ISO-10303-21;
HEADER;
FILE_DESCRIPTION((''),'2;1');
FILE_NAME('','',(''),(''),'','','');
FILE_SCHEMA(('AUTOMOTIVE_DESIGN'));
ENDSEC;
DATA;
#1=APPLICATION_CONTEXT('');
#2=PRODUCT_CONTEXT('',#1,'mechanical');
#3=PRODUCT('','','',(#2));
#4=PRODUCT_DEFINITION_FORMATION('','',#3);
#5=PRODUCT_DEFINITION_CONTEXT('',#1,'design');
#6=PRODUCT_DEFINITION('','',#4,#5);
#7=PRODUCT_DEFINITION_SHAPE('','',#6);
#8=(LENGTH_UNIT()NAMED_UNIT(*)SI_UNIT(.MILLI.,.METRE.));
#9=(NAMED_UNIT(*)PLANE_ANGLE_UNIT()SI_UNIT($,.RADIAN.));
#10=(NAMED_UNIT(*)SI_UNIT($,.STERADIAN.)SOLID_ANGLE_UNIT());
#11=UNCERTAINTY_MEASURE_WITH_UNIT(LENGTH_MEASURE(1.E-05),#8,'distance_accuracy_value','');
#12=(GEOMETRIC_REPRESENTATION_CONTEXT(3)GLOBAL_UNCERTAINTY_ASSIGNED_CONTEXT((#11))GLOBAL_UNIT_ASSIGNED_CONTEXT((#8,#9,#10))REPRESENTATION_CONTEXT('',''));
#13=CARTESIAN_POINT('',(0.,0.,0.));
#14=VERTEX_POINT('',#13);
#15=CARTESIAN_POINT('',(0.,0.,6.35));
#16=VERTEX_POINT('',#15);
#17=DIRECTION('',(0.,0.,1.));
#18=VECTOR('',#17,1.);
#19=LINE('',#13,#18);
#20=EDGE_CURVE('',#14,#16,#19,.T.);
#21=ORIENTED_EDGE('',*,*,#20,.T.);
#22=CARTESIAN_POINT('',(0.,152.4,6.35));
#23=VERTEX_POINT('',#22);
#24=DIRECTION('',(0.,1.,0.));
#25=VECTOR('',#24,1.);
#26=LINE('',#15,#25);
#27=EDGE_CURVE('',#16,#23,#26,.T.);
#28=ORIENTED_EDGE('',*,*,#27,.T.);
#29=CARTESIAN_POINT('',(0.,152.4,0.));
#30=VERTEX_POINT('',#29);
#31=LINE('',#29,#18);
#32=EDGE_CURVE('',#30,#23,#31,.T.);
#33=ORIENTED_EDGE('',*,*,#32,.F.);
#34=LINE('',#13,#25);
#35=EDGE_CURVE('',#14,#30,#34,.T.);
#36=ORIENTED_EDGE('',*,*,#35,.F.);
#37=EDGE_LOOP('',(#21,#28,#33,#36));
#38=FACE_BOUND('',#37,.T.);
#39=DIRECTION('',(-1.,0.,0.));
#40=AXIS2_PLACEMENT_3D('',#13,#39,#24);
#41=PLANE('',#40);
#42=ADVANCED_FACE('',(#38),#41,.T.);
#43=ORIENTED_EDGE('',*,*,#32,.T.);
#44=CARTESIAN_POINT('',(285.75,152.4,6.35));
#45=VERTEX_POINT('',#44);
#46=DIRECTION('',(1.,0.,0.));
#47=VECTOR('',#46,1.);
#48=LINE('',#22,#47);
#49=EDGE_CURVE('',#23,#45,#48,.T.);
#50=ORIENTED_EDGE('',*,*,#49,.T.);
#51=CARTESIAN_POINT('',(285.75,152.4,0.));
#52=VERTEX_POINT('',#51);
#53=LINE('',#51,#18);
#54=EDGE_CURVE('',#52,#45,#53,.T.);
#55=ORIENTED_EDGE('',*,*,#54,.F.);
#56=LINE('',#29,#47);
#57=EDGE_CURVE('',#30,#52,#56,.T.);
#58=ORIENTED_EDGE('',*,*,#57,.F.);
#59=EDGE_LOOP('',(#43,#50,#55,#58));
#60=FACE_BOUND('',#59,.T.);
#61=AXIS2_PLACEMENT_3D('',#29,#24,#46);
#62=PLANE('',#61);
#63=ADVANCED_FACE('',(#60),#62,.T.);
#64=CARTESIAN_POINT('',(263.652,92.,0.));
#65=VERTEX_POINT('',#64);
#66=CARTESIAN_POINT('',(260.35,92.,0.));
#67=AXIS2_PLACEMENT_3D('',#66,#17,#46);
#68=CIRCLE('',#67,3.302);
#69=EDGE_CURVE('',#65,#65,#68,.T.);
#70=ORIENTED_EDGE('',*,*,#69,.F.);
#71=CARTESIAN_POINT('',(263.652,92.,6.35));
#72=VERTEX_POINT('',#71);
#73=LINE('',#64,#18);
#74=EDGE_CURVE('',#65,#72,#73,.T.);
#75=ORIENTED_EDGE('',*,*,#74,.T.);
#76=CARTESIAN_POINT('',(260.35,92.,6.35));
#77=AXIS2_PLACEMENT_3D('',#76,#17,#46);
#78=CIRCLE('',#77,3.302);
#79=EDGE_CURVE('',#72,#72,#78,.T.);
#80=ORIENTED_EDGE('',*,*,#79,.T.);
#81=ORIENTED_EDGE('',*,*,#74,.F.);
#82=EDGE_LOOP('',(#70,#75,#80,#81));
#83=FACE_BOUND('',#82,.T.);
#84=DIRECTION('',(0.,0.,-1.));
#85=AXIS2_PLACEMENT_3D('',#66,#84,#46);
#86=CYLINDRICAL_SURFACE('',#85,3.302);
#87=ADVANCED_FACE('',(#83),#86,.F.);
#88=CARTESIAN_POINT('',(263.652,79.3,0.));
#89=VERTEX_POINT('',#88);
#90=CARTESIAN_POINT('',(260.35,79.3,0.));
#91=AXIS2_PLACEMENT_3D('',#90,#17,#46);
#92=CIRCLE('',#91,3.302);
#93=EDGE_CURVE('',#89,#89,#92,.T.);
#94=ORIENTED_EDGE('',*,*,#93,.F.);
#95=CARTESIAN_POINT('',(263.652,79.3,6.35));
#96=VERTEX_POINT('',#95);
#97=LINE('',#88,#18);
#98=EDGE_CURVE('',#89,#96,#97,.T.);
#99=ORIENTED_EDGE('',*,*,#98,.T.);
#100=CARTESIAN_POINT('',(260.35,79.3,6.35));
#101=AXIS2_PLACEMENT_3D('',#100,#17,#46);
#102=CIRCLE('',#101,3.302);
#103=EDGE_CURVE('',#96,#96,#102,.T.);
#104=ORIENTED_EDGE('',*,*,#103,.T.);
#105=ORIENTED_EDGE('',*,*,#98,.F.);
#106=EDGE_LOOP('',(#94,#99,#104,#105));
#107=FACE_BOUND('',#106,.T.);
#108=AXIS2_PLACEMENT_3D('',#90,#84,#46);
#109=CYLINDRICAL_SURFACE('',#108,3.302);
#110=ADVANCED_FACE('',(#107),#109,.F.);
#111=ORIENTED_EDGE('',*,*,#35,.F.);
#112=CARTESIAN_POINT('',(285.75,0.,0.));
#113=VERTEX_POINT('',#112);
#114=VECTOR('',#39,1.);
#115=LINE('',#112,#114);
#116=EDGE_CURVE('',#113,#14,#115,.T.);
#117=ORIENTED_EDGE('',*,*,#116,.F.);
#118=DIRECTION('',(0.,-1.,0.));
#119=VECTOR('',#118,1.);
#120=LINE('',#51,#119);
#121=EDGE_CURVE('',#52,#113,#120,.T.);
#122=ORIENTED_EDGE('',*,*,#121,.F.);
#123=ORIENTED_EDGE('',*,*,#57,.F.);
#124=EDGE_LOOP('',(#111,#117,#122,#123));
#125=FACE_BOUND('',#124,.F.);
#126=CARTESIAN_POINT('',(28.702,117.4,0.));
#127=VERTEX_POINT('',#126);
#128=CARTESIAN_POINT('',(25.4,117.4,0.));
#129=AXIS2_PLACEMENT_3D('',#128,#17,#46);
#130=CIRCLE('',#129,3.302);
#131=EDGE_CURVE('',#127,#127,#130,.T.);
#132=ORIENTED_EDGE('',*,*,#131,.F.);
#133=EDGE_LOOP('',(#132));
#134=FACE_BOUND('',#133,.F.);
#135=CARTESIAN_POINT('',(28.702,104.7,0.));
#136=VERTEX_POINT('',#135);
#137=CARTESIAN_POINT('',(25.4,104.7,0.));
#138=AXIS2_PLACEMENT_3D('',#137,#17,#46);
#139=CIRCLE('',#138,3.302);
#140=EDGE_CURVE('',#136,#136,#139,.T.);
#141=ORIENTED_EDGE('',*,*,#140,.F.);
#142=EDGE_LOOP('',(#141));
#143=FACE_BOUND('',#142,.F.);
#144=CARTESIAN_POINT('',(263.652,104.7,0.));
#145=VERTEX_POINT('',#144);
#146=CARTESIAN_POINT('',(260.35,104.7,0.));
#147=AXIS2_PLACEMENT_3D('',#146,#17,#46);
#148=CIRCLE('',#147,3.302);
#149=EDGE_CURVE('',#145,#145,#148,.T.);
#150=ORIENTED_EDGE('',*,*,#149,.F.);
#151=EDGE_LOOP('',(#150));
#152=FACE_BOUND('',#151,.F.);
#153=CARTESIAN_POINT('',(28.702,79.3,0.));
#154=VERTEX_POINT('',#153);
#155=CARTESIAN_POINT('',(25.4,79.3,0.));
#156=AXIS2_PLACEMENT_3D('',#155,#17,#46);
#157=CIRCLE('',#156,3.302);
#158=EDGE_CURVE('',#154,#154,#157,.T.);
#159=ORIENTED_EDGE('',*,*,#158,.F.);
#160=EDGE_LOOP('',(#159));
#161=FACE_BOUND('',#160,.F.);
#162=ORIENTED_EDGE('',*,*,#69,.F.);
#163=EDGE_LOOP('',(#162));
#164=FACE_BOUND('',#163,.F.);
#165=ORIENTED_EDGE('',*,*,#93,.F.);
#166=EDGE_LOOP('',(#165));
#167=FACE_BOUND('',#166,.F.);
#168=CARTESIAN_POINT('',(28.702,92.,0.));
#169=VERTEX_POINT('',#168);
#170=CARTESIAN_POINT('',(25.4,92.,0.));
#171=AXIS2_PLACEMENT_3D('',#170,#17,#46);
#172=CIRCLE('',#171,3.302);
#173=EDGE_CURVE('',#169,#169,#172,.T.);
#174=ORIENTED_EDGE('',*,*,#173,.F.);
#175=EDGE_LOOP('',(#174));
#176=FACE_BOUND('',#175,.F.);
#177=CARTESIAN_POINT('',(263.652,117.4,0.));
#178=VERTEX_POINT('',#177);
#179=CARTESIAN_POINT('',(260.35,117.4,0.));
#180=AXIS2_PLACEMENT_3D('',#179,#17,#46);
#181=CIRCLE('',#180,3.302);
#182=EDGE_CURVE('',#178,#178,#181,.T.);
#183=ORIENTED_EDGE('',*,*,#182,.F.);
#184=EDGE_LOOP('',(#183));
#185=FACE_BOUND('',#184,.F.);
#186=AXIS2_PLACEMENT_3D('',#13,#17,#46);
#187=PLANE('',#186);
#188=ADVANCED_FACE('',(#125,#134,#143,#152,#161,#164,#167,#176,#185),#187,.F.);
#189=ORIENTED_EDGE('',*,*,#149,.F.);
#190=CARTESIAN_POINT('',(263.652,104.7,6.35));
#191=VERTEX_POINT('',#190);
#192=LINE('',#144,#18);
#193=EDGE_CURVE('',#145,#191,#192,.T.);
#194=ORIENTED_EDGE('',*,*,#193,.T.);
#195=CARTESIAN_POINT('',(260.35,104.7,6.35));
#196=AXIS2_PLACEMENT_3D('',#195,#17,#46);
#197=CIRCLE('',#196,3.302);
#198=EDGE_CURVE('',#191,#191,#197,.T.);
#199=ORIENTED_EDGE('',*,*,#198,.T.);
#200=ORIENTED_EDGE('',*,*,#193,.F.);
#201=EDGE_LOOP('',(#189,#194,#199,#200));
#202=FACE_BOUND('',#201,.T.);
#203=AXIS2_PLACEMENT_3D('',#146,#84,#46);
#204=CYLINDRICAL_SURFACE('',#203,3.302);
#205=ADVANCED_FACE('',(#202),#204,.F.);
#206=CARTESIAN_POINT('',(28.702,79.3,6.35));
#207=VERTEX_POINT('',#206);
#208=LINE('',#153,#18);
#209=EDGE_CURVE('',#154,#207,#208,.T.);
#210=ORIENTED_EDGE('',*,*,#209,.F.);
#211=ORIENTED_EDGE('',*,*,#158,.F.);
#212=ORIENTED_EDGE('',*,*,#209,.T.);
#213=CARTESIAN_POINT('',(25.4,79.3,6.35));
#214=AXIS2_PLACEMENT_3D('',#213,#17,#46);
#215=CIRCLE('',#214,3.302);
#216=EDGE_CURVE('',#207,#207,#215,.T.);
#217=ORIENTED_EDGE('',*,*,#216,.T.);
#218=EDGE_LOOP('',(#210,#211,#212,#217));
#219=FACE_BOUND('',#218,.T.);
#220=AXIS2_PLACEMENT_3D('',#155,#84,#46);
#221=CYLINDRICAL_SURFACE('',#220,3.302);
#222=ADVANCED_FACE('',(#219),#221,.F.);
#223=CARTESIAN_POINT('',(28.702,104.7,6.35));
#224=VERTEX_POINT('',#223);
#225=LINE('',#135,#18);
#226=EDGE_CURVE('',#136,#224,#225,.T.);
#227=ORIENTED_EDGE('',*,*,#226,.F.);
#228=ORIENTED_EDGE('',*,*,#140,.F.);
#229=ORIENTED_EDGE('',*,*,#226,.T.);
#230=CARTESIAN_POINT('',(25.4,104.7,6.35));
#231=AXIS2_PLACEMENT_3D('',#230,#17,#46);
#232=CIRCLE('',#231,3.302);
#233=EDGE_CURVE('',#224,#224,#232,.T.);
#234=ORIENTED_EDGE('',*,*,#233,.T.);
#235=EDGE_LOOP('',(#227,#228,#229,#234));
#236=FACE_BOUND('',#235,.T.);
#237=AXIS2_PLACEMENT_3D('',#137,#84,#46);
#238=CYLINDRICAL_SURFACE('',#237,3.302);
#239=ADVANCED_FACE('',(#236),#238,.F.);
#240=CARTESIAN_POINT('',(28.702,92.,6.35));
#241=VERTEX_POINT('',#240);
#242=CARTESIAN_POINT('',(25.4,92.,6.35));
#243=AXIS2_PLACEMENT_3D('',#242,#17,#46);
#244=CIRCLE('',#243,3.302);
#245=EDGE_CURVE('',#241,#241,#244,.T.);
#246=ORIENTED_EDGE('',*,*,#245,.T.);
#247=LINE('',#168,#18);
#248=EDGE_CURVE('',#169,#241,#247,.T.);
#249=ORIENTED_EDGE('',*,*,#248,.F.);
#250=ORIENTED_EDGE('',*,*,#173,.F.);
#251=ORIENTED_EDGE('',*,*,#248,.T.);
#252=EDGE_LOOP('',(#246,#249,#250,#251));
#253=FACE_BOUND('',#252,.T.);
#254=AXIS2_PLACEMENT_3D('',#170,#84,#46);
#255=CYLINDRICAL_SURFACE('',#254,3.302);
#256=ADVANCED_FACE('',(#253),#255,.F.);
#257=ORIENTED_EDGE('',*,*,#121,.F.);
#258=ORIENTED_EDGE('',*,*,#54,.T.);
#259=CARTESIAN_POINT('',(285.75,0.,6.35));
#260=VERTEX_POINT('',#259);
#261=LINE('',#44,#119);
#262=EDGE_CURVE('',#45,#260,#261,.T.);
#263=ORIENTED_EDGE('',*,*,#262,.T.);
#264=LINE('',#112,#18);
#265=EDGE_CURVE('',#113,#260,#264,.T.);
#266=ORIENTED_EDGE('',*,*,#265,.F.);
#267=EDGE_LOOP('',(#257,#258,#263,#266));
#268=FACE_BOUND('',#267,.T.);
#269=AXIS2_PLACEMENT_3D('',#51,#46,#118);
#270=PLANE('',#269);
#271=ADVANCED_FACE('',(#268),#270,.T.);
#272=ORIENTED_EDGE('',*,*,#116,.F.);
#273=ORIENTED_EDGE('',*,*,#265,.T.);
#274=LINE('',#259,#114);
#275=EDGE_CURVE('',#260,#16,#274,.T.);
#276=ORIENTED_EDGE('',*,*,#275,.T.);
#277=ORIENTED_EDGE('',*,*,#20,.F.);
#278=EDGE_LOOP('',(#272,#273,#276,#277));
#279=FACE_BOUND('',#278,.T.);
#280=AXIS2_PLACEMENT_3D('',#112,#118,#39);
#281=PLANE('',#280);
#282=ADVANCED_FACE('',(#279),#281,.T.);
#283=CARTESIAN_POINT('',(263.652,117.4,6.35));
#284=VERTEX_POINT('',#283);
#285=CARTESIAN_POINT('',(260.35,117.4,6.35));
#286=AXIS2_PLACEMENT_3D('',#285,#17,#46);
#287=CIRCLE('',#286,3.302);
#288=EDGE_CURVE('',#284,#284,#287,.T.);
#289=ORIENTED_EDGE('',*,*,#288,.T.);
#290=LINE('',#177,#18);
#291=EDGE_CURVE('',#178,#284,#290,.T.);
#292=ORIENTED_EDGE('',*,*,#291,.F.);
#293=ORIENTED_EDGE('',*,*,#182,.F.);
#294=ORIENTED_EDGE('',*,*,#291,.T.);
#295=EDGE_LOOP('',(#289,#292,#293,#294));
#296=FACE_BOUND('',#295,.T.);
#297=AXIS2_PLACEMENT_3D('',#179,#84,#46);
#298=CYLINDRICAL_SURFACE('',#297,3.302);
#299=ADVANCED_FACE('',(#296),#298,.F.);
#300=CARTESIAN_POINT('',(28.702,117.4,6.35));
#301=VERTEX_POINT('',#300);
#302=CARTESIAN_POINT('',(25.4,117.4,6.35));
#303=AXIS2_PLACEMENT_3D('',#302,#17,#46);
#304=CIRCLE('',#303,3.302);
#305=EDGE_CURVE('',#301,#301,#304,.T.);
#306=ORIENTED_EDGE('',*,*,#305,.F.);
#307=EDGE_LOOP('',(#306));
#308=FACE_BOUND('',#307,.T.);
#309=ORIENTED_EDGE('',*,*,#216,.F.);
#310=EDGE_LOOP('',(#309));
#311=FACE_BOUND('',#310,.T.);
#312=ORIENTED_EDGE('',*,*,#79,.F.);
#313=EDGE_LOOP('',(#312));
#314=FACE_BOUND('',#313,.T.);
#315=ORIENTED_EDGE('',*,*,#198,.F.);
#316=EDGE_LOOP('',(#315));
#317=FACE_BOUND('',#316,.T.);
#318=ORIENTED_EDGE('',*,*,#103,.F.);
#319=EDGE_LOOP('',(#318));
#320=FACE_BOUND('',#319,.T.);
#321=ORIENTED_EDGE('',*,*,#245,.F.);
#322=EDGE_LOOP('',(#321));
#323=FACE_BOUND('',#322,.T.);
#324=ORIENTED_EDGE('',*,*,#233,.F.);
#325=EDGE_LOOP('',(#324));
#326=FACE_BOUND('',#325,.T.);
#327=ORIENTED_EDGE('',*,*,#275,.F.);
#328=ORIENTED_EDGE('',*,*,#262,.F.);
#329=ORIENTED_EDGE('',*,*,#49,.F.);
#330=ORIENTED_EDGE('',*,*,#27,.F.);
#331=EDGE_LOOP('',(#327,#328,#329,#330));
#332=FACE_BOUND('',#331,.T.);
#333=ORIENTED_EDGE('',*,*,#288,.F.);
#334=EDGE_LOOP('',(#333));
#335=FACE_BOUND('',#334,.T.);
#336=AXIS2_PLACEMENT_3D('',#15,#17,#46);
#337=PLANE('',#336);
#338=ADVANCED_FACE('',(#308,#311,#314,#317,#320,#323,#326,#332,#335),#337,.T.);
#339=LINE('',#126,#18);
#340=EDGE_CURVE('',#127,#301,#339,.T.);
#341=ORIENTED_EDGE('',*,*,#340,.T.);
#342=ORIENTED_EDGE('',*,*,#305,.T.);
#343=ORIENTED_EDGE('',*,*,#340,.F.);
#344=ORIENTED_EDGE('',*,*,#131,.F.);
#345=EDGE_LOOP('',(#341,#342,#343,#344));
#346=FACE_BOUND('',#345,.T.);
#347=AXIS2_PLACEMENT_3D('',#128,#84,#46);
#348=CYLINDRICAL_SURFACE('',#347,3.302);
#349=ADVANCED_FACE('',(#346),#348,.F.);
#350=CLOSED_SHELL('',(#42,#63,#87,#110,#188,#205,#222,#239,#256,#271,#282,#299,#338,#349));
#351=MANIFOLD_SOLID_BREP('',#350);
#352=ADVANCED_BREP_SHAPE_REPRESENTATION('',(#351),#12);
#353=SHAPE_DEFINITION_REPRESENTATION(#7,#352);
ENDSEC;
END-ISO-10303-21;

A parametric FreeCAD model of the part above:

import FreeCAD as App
import Part
import Sketcher
Q = App.Units.Quantity

doc = App.newDocument("Part")
body = doc.addObject("PartDesign::Body", "Body")

sketch1 = body.newObject("Sketcher::SketchObject", "Sketch")
sketch1.AttachmentSupport = (doc.getObject("XY_Plane"), [""])
sketch1.MapMode = "FlatFace"
sketch1.addGeometry([
    Part.LineSegment(App.Vector(285.75, 152.4, 0), App.Vector(0, 152.4, 0)),
    Part.LineSegment(App.Vector(0, 152.4, 0), App.Vector(0, 0, 0)),
    Part.LineSegment(App.Vector(0, 0, 0), App.Vector(285.75, 0, 0)),
    Part.LineSegment(App.Vector(285.75, 0, 0), App.Vector(285.75, 152.4, 0)),
    Part.Circle(App.Vector(25.4, 79.3, 0), App.Vector(0, 0, 1), 3.302),
    Part.Circle(App.Vector(25.4, 92, 0), App.Vector(0, 0, 1), 3.302),
    Part.Circle(App.Vector(25.4, 104.7, 0), App.Vector(0, 0, 1), 3.302),
    Part.Circle(App.Vector(25.4, 117.4, 0), App.Vector(0, 0, 1), 3.302),
    Part.Circle(App.Vector(260.35, 79.3, 0), App.Vector(0, 0, 1), 3.302),
    Part.Circle(App.Vector(260.35, 92, 0), App.Vector(0, 0, 1), 3.302),
    Part.Circle(App.Vector(260.35, 104.7, 0), App.Vector(0, 0, 1), 3.302),
    Part.Circle(App.Vector(260.35, 117.4, 0), App.Vector(0, 0, 1), 3.302),
], False)
sketch1.addConstraint([
    Sketcher.Constraint("Coincident", 0, 2, 1, 1),
    Sketcher.Constraint("Coincident", 1, 2, 2, 1),
    Sketcher.Constraint("Coincident", 2, 2, 3, 1),
    Sketcher.Constraint("Coincident", 3, 2, 0, 1),
    Sketcher.Constraint("Horizontal", 0),
    Sketcher.Constraint("Vertical", 1),
    Sketcher.Constraint("Horizontal", 2),
    Sketcher.Constraint("Vertical", 3),
    Sketcher.Constraint("Coincident", 1, 2, -1, 1),
    Sketcher.Constraint("Equal", 4, 5),
    Sketcher.Constraint("Equal", 5, 6),
    Sketcher.Constraint("Equal", 6, 7),
    Sketcher.Constraint("Equal", 7, 8),
    Sketcher.Constraint("Equal", 8, 9),
    Sketcher.Constraint("Equal", 9, 10),
    Sketcher.Constraint("Equal", 10, 11),
    Sketcher.Constraint("Horizontal", 4, 3, 8, 3),
    Sketcher.Constraint("Horizontal", 5, 3, 9, 3),
    Sketcher.Constraint("Horizontal", 6, 3, 10, 3),
    Sketcher.Constraint("Horizontal", 7, 3, 11, 3),
    Sketcher.Constraint("Vertical", 4, 3, 5, 3),
    Sketcher.Constraint("Vertical", 5, 3, 6, 3),
    Sketcher.Constraint("Vertical", 6, 3, 7, 3),
    Sketcher.Constraint("Vertical", 8, 3, 9, 3),
    Sketcher.Constraint("Vertical", 9, 3, 10, 3),
    Sketcher.Constraint("Vertical", 10, 3, 11, 3),
    Sketcher.Constraint("Diameter", 4, Q("0.26 in")),
    Sketcher.Constraint("DistanceY", 1, 2, 1, 1, Q("6 in")),
    Sketcher.Constraint("DistanceX", -1, 1, 4, 3, Q("1 in")),
    Sketcher.Constraint("DistanceY", 4, 3, 6, 3, Q("1 in")),
    Sketcher.Constraint("DistanceY", 5, 3, 7, 3, Q("1 in")),
    Sketcher.Constraint("DistanceX", 8, 3, 2, 2, Q("1 in")),
    Sketcher.Constraint("DistanceX", 0, 2, 0, 1, Q("11.25 in")),
    Sketcher.Constraint("DistanceY", 4, 3, 5, 3, Q("0.5 in")),
    Sketcher.Constraint("DistanceY", 7, 3, 0, 2, Q("35 mm")),
])
pad1 = body.newObject("PartDesign::Pad", "Pad")
pad1.Profile = sketch1
pad1.Length = Q("0.25 in")

doc.recompute()
